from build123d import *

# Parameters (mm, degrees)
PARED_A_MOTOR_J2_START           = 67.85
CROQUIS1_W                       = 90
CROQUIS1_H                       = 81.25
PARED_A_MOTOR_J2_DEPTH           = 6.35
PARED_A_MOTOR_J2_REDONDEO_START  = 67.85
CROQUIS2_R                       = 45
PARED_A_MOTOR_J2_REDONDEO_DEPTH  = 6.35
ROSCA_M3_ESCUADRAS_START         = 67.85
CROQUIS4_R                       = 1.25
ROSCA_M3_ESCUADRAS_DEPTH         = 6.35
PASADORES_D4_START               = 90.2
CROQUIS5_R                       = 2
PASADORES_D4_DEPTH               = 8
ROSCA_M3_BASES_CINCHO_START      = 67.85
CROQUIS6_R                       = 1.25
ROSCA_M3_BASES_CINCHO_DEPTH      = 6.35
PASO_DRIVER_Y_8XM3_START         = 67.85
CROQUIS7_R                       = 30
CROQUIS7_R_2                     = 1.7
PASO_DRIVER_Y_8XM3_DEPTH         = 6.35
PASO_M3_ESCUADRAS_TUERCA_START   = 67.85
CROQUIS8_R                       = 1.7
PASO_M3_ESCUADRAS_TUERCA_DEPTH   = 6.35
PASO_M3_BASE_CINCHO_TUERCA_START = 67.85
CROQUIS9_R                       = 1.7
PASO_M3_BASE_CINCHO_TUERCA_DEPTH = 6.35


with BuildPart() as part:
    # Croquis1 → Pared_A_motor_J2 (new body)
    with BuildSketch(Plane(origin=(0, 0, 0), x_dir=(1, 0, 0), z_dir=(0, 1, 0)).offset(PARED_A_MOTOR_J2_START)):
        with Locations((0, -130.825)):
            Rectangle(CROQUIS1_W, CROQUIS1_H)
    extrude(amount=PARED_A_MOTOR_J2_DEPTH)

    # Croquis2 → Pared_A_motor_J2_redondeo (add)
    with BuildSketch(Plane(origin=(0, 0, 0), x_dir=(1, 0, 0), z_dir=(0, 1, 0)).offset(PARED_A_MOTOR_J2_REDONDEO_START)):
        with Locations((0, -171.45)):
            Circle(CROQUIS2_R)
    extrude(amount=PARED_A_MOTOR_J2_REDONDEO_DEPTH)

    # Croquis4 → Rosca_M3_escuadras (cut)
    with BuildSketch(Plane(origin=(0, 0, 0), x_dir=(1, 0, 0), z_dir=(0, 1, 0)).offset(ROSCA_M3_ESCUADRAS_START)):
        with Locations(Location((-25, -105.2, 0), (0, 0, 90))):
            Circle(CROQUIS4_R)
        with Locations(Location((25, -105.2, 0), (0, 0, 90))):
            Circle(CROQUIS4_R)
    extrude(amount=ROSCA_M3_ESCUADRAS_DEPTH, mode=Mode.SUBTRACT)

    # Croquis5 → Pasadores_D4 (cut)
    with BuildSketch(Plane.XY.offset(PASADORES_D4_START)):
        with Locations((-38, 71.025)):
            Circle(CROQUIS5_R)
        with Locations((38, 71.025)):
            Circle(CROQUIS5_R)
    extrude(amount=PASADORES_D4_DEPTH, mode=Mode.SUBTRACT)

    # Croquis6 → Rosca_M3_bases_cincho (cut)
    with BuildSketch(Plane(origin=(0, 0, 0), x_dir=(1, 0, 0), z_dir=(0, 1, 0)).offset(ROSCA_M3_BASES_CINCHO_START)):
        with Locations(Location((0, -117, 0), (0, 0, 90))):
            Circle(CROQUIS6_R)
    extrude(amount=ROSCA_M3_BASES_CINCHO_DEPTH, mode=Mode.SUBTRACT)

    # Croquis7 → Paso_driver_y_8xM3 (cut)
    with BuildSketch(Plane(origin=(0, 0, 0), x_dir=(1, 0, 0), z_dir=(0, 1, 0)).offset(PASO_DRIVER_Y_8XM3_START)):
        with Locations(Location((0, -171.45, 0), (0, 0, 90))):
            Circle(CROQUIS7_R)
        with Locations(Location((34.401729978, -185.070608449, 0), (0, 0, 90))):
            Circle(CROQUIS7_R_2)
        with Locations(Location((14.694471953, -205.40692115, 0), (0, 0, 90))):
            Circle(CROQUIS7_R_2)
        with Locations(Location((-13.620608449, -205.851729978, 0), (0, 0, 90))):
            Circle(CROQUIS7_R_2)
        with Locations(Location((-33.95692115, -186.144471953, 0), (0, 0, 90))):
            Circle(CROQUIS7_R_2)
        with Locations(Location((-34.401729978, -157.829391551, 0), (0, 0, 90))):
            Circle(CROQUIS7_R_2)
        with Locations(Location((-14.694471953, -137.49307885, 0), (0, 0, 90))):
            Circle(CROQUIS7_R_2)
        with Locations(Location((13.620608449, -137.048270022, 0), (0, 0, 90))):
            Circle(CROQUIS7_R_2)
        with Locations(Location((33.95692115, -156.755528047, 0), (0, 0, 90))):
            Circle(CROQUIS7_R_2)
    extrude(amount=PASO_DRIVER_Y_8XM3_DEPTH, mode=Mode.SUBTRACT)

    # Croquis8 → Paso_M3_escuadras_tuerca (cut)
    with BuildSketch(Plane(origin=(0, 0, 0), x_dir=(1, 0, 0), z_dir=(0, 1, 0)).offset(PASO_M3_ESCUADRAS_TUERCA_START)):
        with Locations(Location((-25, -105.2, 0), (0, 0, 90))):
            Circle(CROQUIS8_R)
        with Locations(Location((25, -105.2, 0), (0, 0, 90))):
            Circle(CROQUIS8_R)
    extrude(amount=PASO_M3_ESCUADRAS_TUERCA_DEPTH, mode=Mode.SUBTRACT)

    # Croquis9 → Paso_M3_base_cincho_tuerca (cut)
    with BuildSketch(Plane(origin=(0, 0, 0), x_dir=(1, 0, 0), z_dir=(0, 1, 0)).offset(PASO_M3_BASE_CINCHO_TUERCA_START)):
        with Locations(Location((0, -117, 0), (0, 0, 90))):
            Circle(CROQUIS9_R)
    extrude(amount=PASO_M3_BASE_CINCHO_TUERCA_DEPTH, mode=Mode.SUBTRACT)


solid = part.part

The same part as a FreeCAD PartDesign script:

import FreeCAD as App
import Part
import Sketcher
from FreeCAD import Vector
Q = App.Units.Quantity

doc = App.newDocument("Part")
body = doc.addObject("PartDesign::Body", "Body")

# Sketch on XZ plane
sketch1 = body.newObject("Sketcher::SketchObject", "Sketch")
sketch1.AttachmentSupport = (doc.getObject("XZ_Plane"), [""])
sketch1.MapMode = "FlatFace"
sketch1.AttachmentOffset = App.Placement(Vector(0, 0, -67.85), App.Rotation())
sketch1.addGeometry(Part.LineSegment(Vector(-45, 90, 0), Vector(-45, 171, 0)), False)
sketch1.addGeometry(Part.LineSegment(Vector(-45, 171, 0), Vector(45, 171, 0)), False)
sketch1.addGeometry(Part.LineSegment(Vector(45, 171, 0), Vector(45, 90, 0)), False)
sketch1.addGeometry(Part.LineSegment(Vector(45, 90, 0), Vector(-45, 90, 0)), False)
sketch1.addConstraint(Sketcher.Constraint("Coincident", 0, 2, 1, 1))
sketch1.addConstraint(Sketcher.Constraint("Coincident", 1, 2, 2, 1))
sketch1.addConstraint(Sketcher.Constraint("Coincident", 2, 2, 3, 1))
sketch1.addConstraint(Sketcher.Constraint("Coincident", 3, 2, 0, 1))
sketch1.addConstraint(Sketcher.Constraint("Vertical", 0))
sketch1.addConstraint(Sketcher.Constraint("Horizontal", 1))
sketch1.addConstraint(Sketcher.Constraint("Vertical", 2))
sketch1.addConstraint(Sketcher.Constraint("Horizontal", 3))
sketch1.addConstraint(Sketcher.Constraint("DistanceX", 1, 1, 1, 2, Q("90 mm")))
sketch1.addConstraint(Sketcher.Constraint("DistanceX", 0, 2, -1, 1, Q("45 mm")))
sketch1.addConstraint(Sketcher.Constraint("DistanceY", 0, 1, 0, 2, Q("81.25 mm")))
sketch1.addConstraint(Sketcher.Constraint("DistanceY", -1, 1, 2, 2, Q("90.2 mm")))
pad1 = body.newObject("PartDesign::Pad", "Pad")
pad1.Profile = sketch1
pad1.Length = 6.35
pad1.Reversed = True

# Sketch on XZ plane
sketch2 = body.newObject("Sketcher::SketchObject", "Sketch001")
sketch2.AttachmentSupport = (doc.getObject("XZ_Plane"), [""])
sketch2.MapMode = "FlatFace"
sketch2.AttachmentOffset = App.Placement(Vector(0, 0, -67.85), App.Rotation())
sketch2.addGeometry(Part.Circle(Vector(0, 171, 0), Vector(0, 0, 1), 45), False)
sketch2.addConstraint(Sketcher.Constraint("PointOnObject", 0, 3, -2))
sketch2.addConstraint(Sketcher.Constraint("Diameter", 0, Q("90 mm")))
sketch2.addConstraint(Sketcher.Constraint("DistanceY", -1, 1, 0, 3, Q("171.45 mm")))
pad2 = body.newObject("PartDesign::Pad", "Pad001")
pad2.Profile = sketch2
pad2.Length = 6.35
pad2.Reversed = True

# Sketch on XZ plane
sketch3 = body.newObject("Sketcher::SketchObject", "Sketch002")
sketch3.AttachmentSupport = (doc.getObject("XZ_Plane"), [""])
sketch3.MapMode = "FlatFace"
sketch3.AttachmentOffset = App.Placement(Vector(0, 0, -67.85), App.Rotation())
sketch3.addGeometry(Part.Circle(Vector(-25, 105.2, 0), Vector(0, 0, 1), 1.2), False)
sketch3.addGeometry(Part.Circle(Vector(25, 105.2, 0), Vector(0, 0, 1), 1.2), False)
sketch3.addConstraint(Sketcher.Constraint("Equal", 0, 1))
sketch3.addConstraint(Sketcher.Constraint("Symmetric", 0, 3, 1, 3, -2))
sketch3.addConstraint(Sketcher.Constraint("Diameter", 0, Q("2.5 mm")))
sketch3.addConstraint(Sketcher.Constraint("DistanceX", 0, 3, -1, 1, Q("25 mm")))
sketch3.addConstraint(Sketcher.Constraint("DistanceY", -1, 1, 0, 3, Q("105.2 mm")))
pocket1 = body.newObject("PartDesign::Pocket", "Pocket")
pocket1.Profile = sketch3
pocket1.Length = 6.35

# Sketch on XY plane
sketch4 = body.newObject("Sketcher::SketchObject", "Sketch003")
sketch4.AttachmentSupport = (doc.getObject("XY_Plane"), [""])
sketch4.MapMode = "FlatFace"
sketch4.AttachmentOffset = App.Placement(Vector(0, 0, 90.2), App.Rotation())
sketch4.addGeometry(Part.Circle(Vector(-38, 71, 0), Vector(0, 0, 1), 2), False)
sketch4.addGeometry(Part.Circle(Vector(38, 71, 0), Vector(0, 0, 1), 2), False)
sketch4.addConstraint(Sketcher.Constraint("Equal", 0, 1))
sketch4.addConstraint(Sketcher.Constraint("Symmetric", 0, 3, 1, 3, -2))
sketch4.addConstraint(Sketcher.Constraint("Diameter", 0, Q("4 mm")))
sketch4.addConstraint(Sketcher.Constraint("DistanceX", 0, 3, -1, 1, Q("38 mm")))
sketch4.addConstraint(Sketcher.Constraint("DistanceY", -1, 1, 0, 3, Q("71.025 mm")))
pocket2 = body.newObject("PartDesign::Pocket", "Pocket001")
pocket2.Profile = sketch4
pocket2.Length = 8
pocket2.Reversed = True

# Sketch on XZ plane
sketch5 = body.newObject("Sketcher::SketchObject", "Sketch004")
sketch5.AttachmentSupport = (doc.getObject("XZ_Plane"), [""])
sketch5.MapMode = "FlatFace"
sketch5.AttachmentOffset = App.Placement(Vector(0, 0, -67.85), App.Rotation())
sketch5.addGeometry(Part.Circle(Vector(0, 117, 0), Vector(0, 0, 1), 1.2), False)
sketch5.addConstraint(Sketcher.Constraint("PointOnObject", 0, 3, -2))
sketch5.addConstraint(Sketcher.Constraint("Diameter", 0, Q("2.5 mm")))
sketch5.addConstraint(Sketcher.Constraint("DistanceY", -1, 1, 0, 3, Q("117 mm")))
pocket3 = body.newObject("PartDesign::Pocket", "Pocket002")
pocket3.Profile = sketch5
pocket3.Length = 6.35

# Sketch on XZ plane
sketch6 = body.newObject("Sketcher::SketchObject", "Sketch005")
sketch6.AttachmentSupport = (doc.getObject("XZ_Plane"), [""])
sketch6.MapMode = "FlatFace"
sketch6.AttachmentOffset = App.Placement(Vector(0, 0, -67.85), App.Rotation())
sketch6.addGeometry(Part.Circle(Vector(0, 171.4, 0), Vector(0, 0, 1), 30), False)
sketch6.addGeometry(Part.Circle(Vector(34.4, 185.1, 0), Vector(0, 0, 1), 1.7), False)
sketch6.addGeometry(Part.Circle(Vector(14.7, 205.4, 0), Vector(0, 0, 1), 1.7), False)
sketch6.addGeometry(Part.Circle(Vector(-13.6, 205.9, 0), Vector(0, 0, 1), 1.7), False)
sketch6.addGeometry(Part.Circle(Vector(-34, 186.1, 0), Vector(0, 0, 1), 1.7), False)
sketch6.addGeometry(Part.Circle(Vector(-34.4, 157.8, 0), Vector(0, 0, 1), 1.7), False)
sketch6.addGeometry(Part.Circle(Vector(-14.7, 137.5, 0), Vector(0, 0, 1), 1.7), False)
sketch6.addGeometry(Part.Circle(Vector(13.6, 137, 0), Vector(0, 0, 1), 1.7), False)
sketch6.addGeometry(Part.Circle(Vector(34, 156.8, 0), Vector(0, 0, 1), 1.7), False)
sketch6.addConstraint(Sketcher.Constraint("Equal", 1, 2))
sketch6.addConstraint(Sketcher.Constraint("Equal", 2, 3))
sketch6.addConstraint(Sketcher.Constraint("Equal", 3, 4))
sketch6.addConstraint(Sketcher.Constraint("Equal", 4, 5))
sketch6.addConstraint(Sketcher.Constraint("Equal", 5, 6))
sketch6.addConstraint(Sketcher.Constraint("Equal", 6, 7))
sketch6.addConstraint(Sketcher.Constraint("Equal", 7, 8))
sketch6.addConstraint(Sketcher.Constraint("PointOnObject", 0, 3, -2))
sketch6.addConstraint(Sketcher.Constraint("Diameter", 0, Q("60 mm")))
sketch6.addConstraint(Sketcher.Constraint("Diameter", 1, Q("3.4 mm")))
sketch6.addConstraint(Sketcher.Constraint("DistanceY", -1, 1, 0, 3, Q("171.45 mm")))
sketch6.addConstraint(Sketcher.Constraint("DistanceX", 5, 3, 2, 3, Q("49.096202 mm")))
sketch6.addConstraint(Sketcher.Constraint("DistanceX", 6, 3, 1, 3, Q("49.096202 mm")))
sketch6.addConstraint(Sketcher.Constraint("DistanceY", 7, 3, 4, 3, Q("49.096202 mm")))
sketch6.addConstraint(Sketcher.Constraint("DistanceX", -1, 1, 1, 3, Q("34.40173 mm")))
sketch6.addConstraint(Sketcher.Constraint("DistanceY", -1, 1, 1, 3, Q("185.070608 mm")))
sketch6.addConstraint(Sketcher.Constraint("DistanceX", -1, 1, 2, 3, Q("14.694472 mm")))
sketch6.addConstraint(Sketcher.Constraint("DistanceY", -1, 1, 2, 3, Q("205.406921 mm")))
sketch6.addConstraint(Sketcher.Constraint("DistanceX", 3, 3, -1, 1, Q("13.620608 mm")))
sketch6.addConstraint(Sketcher.Constraint("DistanceY", -1, 1, 3, 3, Q("205.85173 mm")))
sketch6.addConstraint(Sketcher.Constraint("DistanceX", 4, 3, -1, 1, Q("33.956921 mm")))
sketch6.addConstraint(Sketcher.Constraint("DistanceY", -1, 1, 4, 3, Q("186.144472 mm")))
sketch6.addConstraint(Sketcher.Constraint("DistanceY", -1, 1, 5, 3, Q("157.829392 mm")))
sketch6.addConstraint(Sketcher.Constraint("DistanceY", -1, 1, 6, 3, Q("137.493079 mm")))
sketch6.addConstraint(Sketcher.Constraint("DistanceX", -1, 1, 7, 3, Q("13.620608 mm")))
sketch6.addConstraint(Sketcher.Constraint("DistanceX", -1, 1, 8, 3, Q("33.956921 mm")))
sketch6.addConstraint(Sketcher.Constraint("DistanceY", -1, 1, 8, 3, Q("156.755528 mm")))
pocket4 = body.newObject("PartDesign::Pocket", "Pocket003")
pocket4.Profile = sketch6
pocket4.Length = 6.35

# Sketch on XZ plane
sketch7 = body.newObject("Sketcher::SketchObject", "Sketch006")
sketch7.AttachmentSupport = (doc.getObject("XZ_Plane"), [""])
sketch7.MapMode = "FlatFace"
sketch7.AttachmentOffset = App.Placement(Vector(0, 0, -67.85), App.Rotation())
sketch7.addGeometry(Part.Circle(Vector(-25, 105.2, 0), Vector(0, 0, 1), 1.7), False)
sketch7.addGeometry(Part.Circle(Vector(25, 105.2, 0), Vector(0, 0, 1), 1.7), False)
sketch7.addConstraint(Sketcher.Constraint("Equal", 0, 1))
sketch7.addConstraint(Sketcher.Constraint("Symmetric", 0, 3, 1, 3, -2))
sketch7.addConstraint(Sketcher.Constraint("Diameter", 0, Q("3.4 mm")))
sketch7.addConstraint(Sketcher.Constraint("DistanceX", 0, 3, -1, 1, Q("25 mm")))
sketch7.addConstraint(Sketcher.Constraint("DistanceY", -1, 1, 0, 3, Q("105.2 mm")))
pocket5 = body.newObject("PartDesign::Pocket", "Pocket004")
pocket5.Profile = sketch7
pocket5.Length = 6.35

# Sketch on XZ plane
sketch8 = body.newObject("Sketcher::SketchObject", "Sketch007")
sketch8.AttachmentSupport = (doc.getObject("XZ_Plane"), [""])
sketch8.MapMode = "FlatFace"
sketch8.AttachmentOffset = App.Placement(Vector(0, 0, -67.85), App.Rotation())
sketch8.addGeometry(Part.Circle(Vector(0, 117, 0), Vector(0, 0, 1), 1.7), False)
sketch8.addConstraint(Sketcher.Constraint("PointOnObject", 0, 3, -2))
sketch8.addConstraint(Sketcher.Constraint("Diameter", 0, Q("3.4 mm")))
sketch8.addConstraint(Sketcher.Constraint("DistanceY", -1, 1, 0, 3, Q("117 mm")))
pocket6 = body.newObject("PartDesign::Pocket", "Pocket005")
pocket6.Profile = sketch8
pocket6.Length = 6.35

doc.recompute()
